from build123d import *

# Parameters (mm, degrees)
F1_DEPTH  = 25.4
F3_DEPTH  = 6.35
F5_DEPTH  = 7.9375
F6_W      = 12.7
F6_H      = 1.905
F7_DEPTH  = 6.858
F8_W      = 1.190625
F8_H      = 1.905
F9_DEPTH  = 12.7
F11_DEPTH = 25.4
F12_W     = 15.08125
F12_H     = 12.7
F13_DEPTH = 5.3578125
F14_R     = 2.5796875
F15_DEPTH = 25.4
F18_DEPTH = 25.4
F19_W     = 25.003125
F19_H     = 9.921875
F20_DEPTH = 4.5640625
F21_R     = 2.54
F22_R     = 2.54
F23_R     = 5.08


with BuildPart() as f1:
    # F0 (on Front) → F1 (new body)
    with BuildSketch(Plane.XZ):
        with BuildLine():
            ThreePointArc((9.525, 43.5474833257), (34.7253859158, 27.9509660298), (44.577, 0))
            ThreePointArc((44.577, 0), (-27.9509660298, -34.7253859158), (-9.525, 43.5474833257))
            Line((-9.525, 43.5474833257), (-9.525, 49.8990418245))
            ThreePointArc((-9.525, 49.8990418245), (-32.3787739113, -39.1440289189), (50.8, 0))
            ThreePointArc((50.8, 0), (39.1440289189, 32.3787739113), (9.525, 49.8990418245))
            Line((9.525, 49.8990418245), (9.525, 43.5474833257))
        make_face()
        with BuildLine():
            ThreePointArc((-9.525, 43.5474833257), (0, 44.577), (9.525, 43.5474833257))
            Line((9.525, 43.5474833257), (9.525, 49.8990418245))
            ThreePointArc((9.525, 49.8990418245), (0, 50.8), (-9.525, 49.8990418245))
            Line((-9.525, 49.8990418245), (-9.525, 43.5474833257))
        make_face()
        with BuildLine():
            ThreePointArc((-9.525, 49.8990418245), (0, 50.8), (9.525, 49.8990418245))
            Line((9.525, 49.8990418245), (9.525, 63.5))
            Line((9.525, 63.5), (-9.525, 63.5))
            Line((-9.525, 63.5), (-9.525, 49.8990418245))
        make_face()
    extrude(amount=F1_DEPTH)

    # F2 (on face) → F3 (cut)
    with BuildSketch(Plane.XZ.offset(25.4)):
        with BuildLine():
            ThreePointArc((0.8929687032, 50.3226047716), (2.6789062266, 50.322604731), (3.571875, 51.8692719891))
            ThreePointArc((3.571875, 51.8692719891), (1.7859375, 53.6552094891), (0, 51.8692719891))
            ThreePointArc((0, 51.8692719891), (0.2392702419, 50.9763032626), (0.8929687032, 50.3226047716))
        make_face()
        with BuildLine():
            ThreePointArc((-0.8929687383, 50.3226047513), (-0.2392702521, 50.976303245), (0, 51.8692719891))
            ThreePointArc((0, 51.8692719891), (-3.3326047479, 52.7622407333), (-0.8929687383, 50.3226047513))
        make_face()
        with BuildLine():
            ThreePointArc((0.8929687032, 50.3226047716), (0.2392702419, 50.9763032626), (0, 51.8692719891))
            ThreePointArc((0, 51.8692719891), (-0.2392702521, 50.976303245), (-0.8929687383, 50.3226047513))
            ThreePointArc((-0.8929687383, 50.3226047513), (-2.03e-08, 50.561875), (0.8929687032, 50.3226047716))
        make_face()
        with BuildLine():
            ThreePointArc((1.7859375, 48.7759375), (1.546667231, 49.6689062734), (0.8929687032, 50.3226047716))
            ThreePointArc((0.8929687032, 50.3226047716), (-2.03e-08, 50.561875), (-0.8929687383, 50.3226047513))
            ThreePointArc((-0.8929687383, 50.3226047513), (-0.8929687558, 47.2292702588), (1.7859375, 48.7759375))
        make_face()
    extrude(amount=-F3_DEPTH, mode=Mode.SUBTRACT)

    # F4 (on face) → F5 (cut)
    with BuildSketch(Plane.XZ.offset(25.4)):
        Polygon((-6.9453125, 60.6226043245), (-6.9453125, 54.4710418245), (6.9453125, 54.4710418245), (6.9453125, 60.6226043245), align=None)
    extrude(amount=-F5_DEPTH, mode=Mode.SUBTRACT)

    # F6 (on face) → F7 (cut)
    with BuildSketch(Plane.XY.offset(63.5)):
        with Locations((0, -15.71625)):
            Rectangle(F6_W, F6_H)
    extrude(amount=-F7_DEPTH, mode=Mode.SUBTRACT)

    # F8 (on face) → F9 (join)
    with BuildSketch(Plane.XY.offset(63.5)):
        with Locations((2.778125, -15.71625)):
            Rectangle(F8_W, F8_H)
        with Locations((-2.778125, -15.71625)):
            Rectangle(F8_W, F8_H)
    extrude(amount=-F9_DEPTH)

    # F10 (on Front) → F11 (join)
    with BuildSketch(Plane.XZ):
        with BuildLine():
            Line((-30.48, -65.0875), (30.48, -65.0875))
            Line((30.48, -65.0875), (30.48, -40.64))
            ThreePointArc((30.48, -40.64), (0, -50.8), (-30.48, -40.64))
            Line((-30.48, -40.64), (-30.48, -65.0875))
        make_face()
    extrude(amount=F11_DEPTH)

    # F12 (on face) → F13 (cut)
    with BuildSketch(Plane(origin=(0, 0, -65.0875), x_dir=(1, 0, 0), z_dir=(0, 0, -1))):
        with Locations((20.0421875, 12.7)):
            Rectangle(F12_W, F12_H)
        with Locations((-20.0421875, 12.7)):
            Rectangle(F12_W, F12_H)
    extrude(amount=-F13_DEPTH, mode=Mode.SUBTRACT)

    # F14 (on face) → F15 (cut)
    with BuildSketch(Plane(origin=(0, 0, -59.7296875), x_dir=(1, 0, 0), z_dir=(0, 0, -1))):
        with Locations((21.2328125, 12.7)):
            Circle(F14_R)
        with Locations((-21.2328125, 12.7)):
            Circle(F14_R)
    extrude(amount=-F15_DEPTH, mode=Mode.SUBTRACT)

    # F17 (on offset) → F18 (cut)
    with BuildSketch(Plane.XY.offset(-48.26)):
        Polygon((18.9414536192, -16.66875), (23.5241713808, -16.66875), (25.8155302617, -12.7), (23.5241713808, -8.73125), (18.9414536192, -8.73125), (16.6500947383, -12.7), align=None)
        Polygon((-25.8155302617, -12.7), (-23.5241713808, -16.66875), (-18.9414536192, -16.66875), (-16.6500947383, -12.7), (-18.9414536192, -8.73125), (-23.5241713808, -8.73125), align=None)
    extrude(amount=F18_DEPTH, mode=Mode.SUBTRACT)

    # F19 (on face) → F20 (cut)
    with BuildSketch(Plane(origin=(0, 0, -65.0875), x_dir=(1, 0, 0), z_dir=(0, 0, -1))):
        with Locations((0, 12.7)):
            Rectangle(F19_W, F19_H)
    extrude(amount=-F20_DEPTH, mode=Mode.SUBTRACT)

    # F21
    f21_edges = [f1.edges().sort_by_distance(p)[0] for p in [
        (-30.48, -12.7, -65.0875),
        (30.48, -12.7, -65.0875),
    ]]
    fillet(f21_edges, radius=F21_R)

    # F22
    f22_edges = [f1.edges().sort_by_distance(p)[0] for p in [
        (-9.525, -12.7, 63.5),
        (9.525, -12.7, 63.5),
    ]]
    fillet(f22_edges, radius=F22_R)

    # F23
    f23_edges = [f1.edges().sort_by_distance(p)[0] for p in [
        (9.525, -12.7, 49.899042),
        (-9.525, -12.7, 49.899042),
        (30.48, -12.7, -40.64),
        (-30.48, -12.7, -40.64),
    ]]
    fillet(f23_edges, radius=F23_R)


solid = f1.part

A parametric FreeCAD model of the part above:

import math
import FreeCAD as App
import Part
import Sketcher

V = App.Vector
Q = App.Units.Quantity


def edges_at(feature, points):
    """Names of the edges that pass closest to the given points."""
    edges = feature.Shape.Edges
    near = lambda p: min(range(len(edges)), key=lambda i: edges[i].distToShape(Part.Vertex(*p))[0])
    return sorted({f"Edge{near(p) + 1}" for p in points})

doc = App.newDocument("Part")
body = doc.addObject("PartDesign::Body", "Body")

# Sketch on XZ plane
sketch1 = body.newObject("Sketcher::SketchObject", "Sketch")
sketch1.AttachmentSupport = (doc.getObject("XZ_Plane"), [""])
sketch1.MapMode = "FlatFace"
sketch1.addGeometry(Part.ArcOfCircle(Part.Circle(V(0, 0, 0), V(0, 0, 1), 51), math.radians(101), math.radians(439)), False)
sketch1.addGeometry(Part.LineSegment(V(10, 50, 0), V(10, 64, 0)), False)
sketch1.addGeometry(Part.LineSegment(V(10, 64, 0), V(-10, 64, 0)), False)
sketch1.addGeometry(Part.LineSegment(V(-10, 64, 0), V(-10, 50, 0)), False)
sketch1.addGeometry(Part.ArcOfCircle(Part.Circle(V(0, 0, 0), V(0, 0, 1), 45), math.radians(102), math.radians(438)), False)
sketch1.addGeometry(Part.ArcOfCircle(Part.Circle(V(0, 0, 0), V(0, 0, 1), 45), math.radians(78), math.radians(102)), False)
sketch1.addConstraint(Sketcher.Constraint("Coincident", 0, 2, 1, 1))
sketch1.addConstraint(Sketcher.Constraint("Coincident", 1, 2, 2, 1))
sketch1.addConstraint(Sketcher.Constraint("Coincident", 2, 2, 3, 1))
sketch1.addConstraint(Sketcher.Constraint("Coincident", 3, 2, 0, 1))
sketch1.addConstraint(Sketcher.Constraint("Tangent", 4, 1, 5, 2))
sketch1.addConstraint(Sketcher.Constraint("Coincident", 5, 1, 4, 2))
sketch1.addConstraint(Sketcher.Constraint("Vertical", 1))
sketch1.addConstraint(Sketcher.Constraint("Horizontal", 2))
sketch1.addConstraint(Sketcher.Constraint("Vertical", 3))
sketch1.addConstraint(Sketcher.Constraint("Coincident", 0, 3, -1, 1))
sketch1.addConstraint(Sketcher.Constraint("Coincident", 4, 3, -1, 1))
sketch1.addConstraint(Sketcher.Constraint("Horizontal", 0, 2, 3, 2))
sketch1.addConstraint(Sketcher.Constraint("Horizontal", 4, 1, 5, 1))
sketch1.addConstraint(Sketcher.Constraint("Vertical", 3, 2, 4, 1))
sketch1.addConstraint(Sketcher.Constraint("Radius", 0, Q("2 in")))
sketch1.addConstraint(Sketcher.Constraint("Radius", 4, Q("1.755 in")))
sketch1.addConstraint(Sketcher.Constraint("DistanceX", 2, 2, 2, 1, Q("0.75 in")))
sketch1.addConstraint(Sketcher.Constraint("DistanceY", -1, 1, 1, 2, Q("2.5 in")))
pad1 = body.newObject("PartDesign::Pad", "Pad")
pad1.Profile = sketch1
pad1.Length = Q("1 in")

# Sketch on XZ plane
sketch2 = body.newObject("Sketcher::SketchObject", "Sketch001")
sketch2.AttachmentSupport = (doc.getObject("XZ_Plane"), [""])
sketch2.MapMode = "FlatFace"
sketch2.AttachmentOffset = App.Placement(V(0, 0, 1 * 25.4), App.Rotation())
sketch2.addGeometry(Part.ArcOfCircle(Part.Circle(V(1.8, 51.9, 0), V(0, 0, 1), 1.8), math.radians(-120), math.radians(0)), False)
sketch2.addGeometry(Part.ArcOfCircle(Part.Circle(V(1.8, 51.9, 0), V(0, 0, 1), 1.8), math.radians(0), math.radians(180)), False)
sketch2.addGeometry(Part.ArcOfCircle(Part.Circle(V(-1.8, 51.9, 0), V(0, 0, 1), 1.8), math.radians(0), math.radians(300)), False)
sketch2.addGeometry(Part.ArcOfCircle(Part.Circle(V(0, 48.8, 0), V(0, 0, 1), 1.8), math.radians(120), math.radians(360)), False)
sketch2.addGeometry(Part.ArcOfCircle(Part.Circle(V(0, 48.8, 0), V(0, 0, 1), 1.8), math.radians(0), math.radians(60)), False)
sketch2.addConstraint(Sketcher.Constraint("Tangent", 0, 2, 1, 1))
sketch2.addConstraint(Sketcher.Constraint("Tangent", 1, 2, 2, 1))
sketch2.addConstraint(Sketcher.Constraint("Tangent", 2, 2, 3, 1))
sketch2.addConstraint(Sketcher.Constraint("Tangent", 3, 2, 4, 1))
sketch2.addConstraint(Sketcher.Constraint("Tangent", 4, 2, 0, 1))
sketch2.addConstraint(Sketcher.Constraint("Equal", 0, 1))
sketch2.addConstraint(Sketcher.Constraint("Equal", 1, 2))
sketch2.addConstraint(Sketcher.Constraint("Equal", 2, 3))
sketch2.addConstraint(Sketcher.Constraint("Equal", 3, 4))
sketch2.addConstraint(Sketcher.Constraint("Symmetric", 0, 3, 2, 3, -2))
sketch2.addConstraint(Sketcher.Constraint("Horizontal", 2, 3, 0, 2))
sketch2.addConstraint(Sketcher.Constraint("Horizontal", 4, 3, 3, 2))
sketch2.addConstraint(Sketcher.Constraint("DistanceX", -1, 1, 0, 2, Q("0.140625 in")))
sketch2.addConstraint(Sketcher.Constraint("DistanceY", -1, 1, 0, 3, 51.869272))
pocket1 = body.newObject("PartDesign::Pocket", "Pocket")
pocket1.Profile = sketch2
pocket1.Length = Q("0.25 in")

# Sketch on XZ plane
sketch3 = body.newObject("Sketcher::SketchObject", "Sketch002")
sketch3.AttachmentSupport = (doc.getObject("XZ_Plane"), [""])
sketch3.MapMode = "FlatFace"
sketch3.AttachmentOffset = App.Placement(V(0, 0, 1 * 25.4), App.Rotation())
sketch3.addGeometry(Part.LineSegment(V(-7, 61, 0), V(-7, 54, 0)), False)
sketch3.addGeometry(Part.LineSegment(V(-7, 54, 0), V(7, 54, 0)), False)
sketch3.addGeometry(Part.LineSegment(V(7, 54, 0), V(7, 61, 0)), False)
sketch3.addGeometry(Part.LineSegment(V(7, 61, 0), V(-7, 61, 0)), False)
sketch3.addConstraint(Sketcher.Constraint("Coincident", 0, 2, 1, 1))
sketch3.addConstraint(Sketcher.Constraint("Coincident", 1, 2, 2, 1))
sketch3.addConstraint(Sketcher.Constraint("Coincident", 2, 2, 3, 1))
sketch3.addConstraint(Sketcher.Constraint("Coincident", 3, 2, 0, 1))
sketch3.addConstraint(Sketcher.Constraint("Vertical", 0))
sketch3.addConstraint(Sketcher.Constraint("Horizontal", 1))
sketch3.addConstraint(Sketcher.Constraint("Vertical", 2))
sketch3.addConstraint(Sketcher.Constraint("Horizontal", 3))
sketch3.addConstraint(Sketcher.Constraint("DistanceX", 1, 1, 1, 2, Q("0.546875 in")))
sketch3.addConstraint(Sketcher.Constraint("DistanceY", 0, 2, 0, 1, 6.151563))
sketch3.addConstraint(Sketcher.Constraint("DistanceY", -1, 1, 0, 2, 54.471042))
sketch3.addConstraint(Sketcher.Constraint("DistanceX", 0, 2, -1, 1, 6.945312))
pocket2 = body.newObject("PartDesign::Pocket", "Pocket001")
pocket2.Profile = sketch3
pocket2.Length = Q("0.3125 in")

# Sketch on XY plane
sketch4 = body.newObject("Sketcher::SketchObject", "Sketch003")
sketch4.AttachmentSupport = (doc.getObject("XY_Plane"), [""])
sketch4.MapMode = "FlatFace"
sketch4.AttachmentOffset = App.Placement(V(0, 0, 2.5 * 25.4), App.Rotation())
sketch4.addGeometry(Part.LineSegment(V(-6.3, -14.8, 0), V(-6.3, -16.7, 0)), False)
sketch4.addGeometry(Part.LineSegment(V(-6.3, -16.7, 0), V(6.3, -16.7, 0)), False)
sketch4.addGeometry(Part.LineSegment(V(6.3, -16.7, 0), V(6.3, -14.8, 0)), False)
sketch4.addGeometry(Part.LineSegment(V(6.3, -14.8, 0), V(-6.3, -14.8, 0)), False)
sketch4.addConstraint(Sketcher.Constraint("Coincident", 0, 2, 1, 1))
sketch4.addConstraint(Sketcher.Constraint("Coincident", 1, 2, 2, 1))
sketch4.addConstraint(Sketcher.Constraint("Coincident", 2, 2, 3, 1))
sketch4.addConstraint(Sketcher.Constraint("Coincident", 3, 2, 0, 1))
sketch4.addConstraint(Sketcher.Constraint("Vertical", 0))
sketch4.addConstraint(Sketcher.Constraint("Horizontal", 1))
sketch4.addConstraint(Sketcher.Constraint("Vertical", 2))
sketch4.addConstraint(Sketcher.Constraint("Horizontal", 3))
sketch4.addConstraint(Sketcher.Constraint("DistanceX", 1, 1, 1, 2, Q("0.5 in")))
sketch4.addConstraint(Sketcher.Constraint("DistanceY", 0, 2, 0, 1, Q("0.075 in")))
sketch4.addConstraint(Sketcher.Constraint("DistanceX", 0, 2, -1, 1, Q("0.25 in")))
sketch4.addConstraint(Sketcher.Constraint("DistanceY", 0, 2, -1, 1, Q("0.65625 in")))
pocket3 = body.newObject("PartDesign::Pocket", "Pocket002")
pocket3.Profile = sketch4
pocket3.Length = Q("0.27 in")

# Sketch on XY plane
sketch5 = body.newObject("Sketcher::SketchObject", "Sketch004")
sketch5.AttachmentSupport = (doc.getObject("XY_Plane"), [""])
sketch5.MapMode = "FlatFace"
sketch5.AttachmentOffset = App.Placement(V(0, 0, 2.5 * 25.4), App.Rotation())
sketch5.addGeometry(Part.LineSegment(V(2.2, -14.8, 0), V(2.2, -16.7, 0)), False)
sketch5.addGeometry(Part.LineSegment(V(2.2, -16.7, 0), V(3.4, -16.7, 0)), False)
sketch5.addGeometry(Part.LineSegment(V(3.4, -16.7, 0), V(3.4, -14.8, 0)), False)
sketch5.addGeometry(Part.LineSegment(V(3.4, -14.8, 0), V(2.2, -14.8, 0)), False)
sketch5.addGeometry(Part.LineSegment(V(-3.4, -14.8, 0), V(-3.4, -16.7, 0)), False)
sketch5.addGeometry(Part.LineSegment(V(-3.4, -16.7, 0), V(-2.2, -16.7, 0)), False)
sketch5.addGeometry(Part.LineSegment(V(-2.2, -16.7, 0), V(-2.2, -14.8, 0)), False)
sketch5.addGeometry(Part.LineSegment(V(-2.2, -14.8, 0), V(-3.4, -14.8, 0)), False)
sketch5.addConstraint(Sketcher.Constraint("Coincident", 0, 2, 1, 1))
sketch5.addConstraint(Sketcher.Constraint("Coincident", 1, 2, 2, 1))
sketch5.addConstraint(Sketcher.Constraint("Coincident", 2, 2, 3, 1))
sketch5.addConstraint(Sketcher.Constraint("Coincident", 3, 2, 0, 1))
sketch5.addConstraint(Sketcher.Constraint("Coincident", 4, 2, 5, 1))
sketch5.addConstraint(Sketcher.Constraint("Coincident", 5, 2, 6, 1))
sketch5.addConstraint(Sketcher.Constraint("Coincident", 6, 2, 7, 1))
sketch5.addConstraint(Sketcher.Constraint("Coincident", 7, 2, 4, 1))
sketch5.addConstraint(Sketcher.Constraint("Vertical", 0))
sketch5.addConstraint(Sketcher.Constraint("Horizontal", 1))
sketch5.addConstraint(Sketcher.Constraint("Vertical", 2))
sketch5.addConstraint(Sketcher.Constraint("Horizontal", 3))
sketch5.addConstraint(Sketcher.Constraint("Vertical", 4))
sketch5.addConstraint(Sketcher.Constraint("Horizontal", 5))
sketch5.addConstraint(Sketcher.Constraint("Vertical", 6))
sketch5.addConstraint(Sketcher.Constraint("Horizontal", 7))
sketch5.addConstraint(Sketcher.Constraint("Symmetric", 1, 2, 4, 2, -2))
sketch5.addConstraint(Sketcher.Constraint("Symmetric", 3, 2, 6, 2, -2))
sketch5.addConstraint(Sketcher.Constraint("DistanceX", 1, 1, 1, 2, Q("0.046875 in")))
sketch5.addConstraint(Sketcher.Constraint("DistanceY", 0, 2, 0, 1, Q("0.075 in")))
sketch5.addConstraint(Sketcher.Constraint("DistanceY", 0, 2, -1, 1, Q("0.65625 in")))
sketch5.addConstraint(Sketcher.Constraint("DistanceX", 4, 2, 0, 2, Q("0.21875 in")))
pad2 = body.newObject("PartDesign::Pad", "Pad001")
pad2.Profile = sketch5
pad2.Length = Q("0.5 in")
pad2.Reversed = True

# Sketch on XZ plane
sketch6 = body.newObject("Sketcher::SketchObject", "Sketch005")
sketch6.AttachmentSupport = (doc.getObject("XZ_Plane"), [""])
sketch6.MapMode = "FlatFace"
sketch6.addGeometry(Part.LineSegment(V(-30, -65, 0), V(30, -65, 0)), False)
sketch6.addGeometry(Part.LineSegment(V(30, -65, 0), V(30, -41, 0)), False)
sketch6.addGeometry(Part.ArcOfCircle(Part.Circle(V(0, 0, 0), V(0, 0, 1), 51), math.radians(-127), math.radians(-53)), False)
sketch6.addGeometry(Part.LineSegment(V(-30, -41, 0), V(-30, -65, 0)), False)
sketch6.addConstraint(Sketcher.Constraint("Coincident", 0, 2, 1, 1))
sketch6.addConstraint(Sketcher.Constraint("Coincident", 1, 2, 2, 2))
sketch6.addConstraint(Sketcher.Constraint("Coincident", 2, 1, 3, 1))
sketch6.addConstraint(Sketcher.Constraint("Coincident", 3, 2, 0, 1))
sketch6.addConstraint(Sketcher.Constraint("Horizontal", 0))
sketch6.addConstraint(Sketcher.Constraint("Vertical", 1))
sketch6.addConstraint(Sketcher.Constraint("Vertical", 3))
sketch6.addConstraint(Sketcher.Constraint("Coincident", 2, 3, -1, 1))
sketch6.addConstraint(Sketcher.Constraint("Horizontal", 1, 2, 2, 1))
sketch6.addConstraint(Sketcher.Constraint("Radius", 2, Q("2 in")))
sketch6.addConstraint(Sketcher.Constraint("DistanceX", 0, 1, 0, 2, Q("2.4 in")))
sketch6.addConstraint(Sketcher.Constraint("DistanceY", 1, 1, 1, 2, Q("0.9625 in")))
pad3 = body.newObject("PartDesign::Pad", "Pad002")
pad3.Profile = sketch6
pad3.Length = Q("1 in")

# Sketch on XY plane
sketch7 = body.newObject("Sketcher::SketchObject", "Sketch006")
sketch7.AttachmentSupport = (doc.getObject("XY_Plane"), [""])
sketch7.MapMode = "FlatFace"
sketch7.AttachmentOffset = App.Placement(V(0, 0, -2.5625 * 25.4), App.Rotation())
sketch7.addGeometry(Part.LineSegment(V(13, -19, 0), V(13, -6, 0)), False)
sketch7.addGeometry(Part.LineSegment(V(13, -6, 0), V(28, -6, 0)), False)
sketch7.addGeometry(Part.LineSegment(V(28, -6, 0), V(28, -19, 0)), False)
sketch7.addGeometry(Part.LineSegment(V(28, -19, 0), V(13, -19, 0)), False)
sketch7.addGeometry(Part.LineSegment(V(-28, -19, 0), V(-28, -6, 0)), False)
sketch7.addGeometry(Part.LineSegment(V(-28, -6, 0), V(-13, -6, 0)), False)
sketch7.addGeometry(Part.LineSegment(V(-13, -6, 0), V(-13, -19, 0)), False)
sketch7.addGeometry(Part.LineSegment(V(-13, -19, 0), V(-28, -19, 0)), False)
sketch7.addConstraint(Sketcher.Constraint("Coincident", 0, 2, 1, 1))
sketch7.addConstraint(Sketcher.Constraint("Coincident", 1, 2, 2, 1))
sketch7.addConstraint(Sketcher.Constraint("Coincident", 2, 2, 3, 1))
sketch7.addConstraint(Sketcher.Constraint("Coincident", 3, 2, 0, 1))
sketch7.addConstraint(Sketcher.Constraint("Coincident", 4, 2, 5, 1))
sketch7.addConstraint(Sketcher.Constraint("Coincident", 5, 2, 6, 1))
sketch7.addConstraint(Sketcher.Constraint("Coincident", 6, 2, 7, 1))
sketch7.addConstraint(Sketcher.Constraint("Coincident", 7, 2, 4, 1))
sketch7.addConstraint(Sketcher.Constraint("Vertical", 0))
sketch7.addConstraint(Sketcher.Constraint("Horizontal", 1))
sketch7.addConstraint(Sketcher.Constraint("Vertical", 2))
sketch7.addConstraint(Sketcher.Constraint("Horizontal", 3))
sketch7.addConstraint(Sketcher.Constraint("Vertical", 4))
sketch7.addConstraint(Sketcher.Constraint("Horizontal", 5))
sketch7.addConstraint(Sketcher.Constraint("Vertical", 6))
sketch7.addConstraint(Sketcher.Constraint("Horizontal", 7))
sketch7.addConstraint(Sketcher.Constraint("Symmetric", 1, 2, 4, 2, -2))
sketch7.addConstraint(Sketcher.Constraint("Symmetric", 3, 2, 6, 2, -2))
sketch7.addConstraint(Sketcher.Constraint("DistanceY", 0, 1, 0, 2, Q("0.5 in")))
sketch7.addConstraint(Sketcher.Constraint("DistanceX", 1, 1, 1, 2, Q("0.59375 in")))
sketch7.addConstraint(Sketcher.Constraint("DistanceY", 0, 2, -1, 1, Q("0.25 in")))
sketch7.addConstraint(Sketcher.Constraint("DistanceX", 4, 2, 0, 2, Q("1.578125 in")))
pocket4 = body.newObject("PartDesign::Pocket", "Pocket003")
pocket4.Profile = sketch7
pocket4.Length = 5.357812
pocket4.Reversed = True

# Sketch on XY plane
sketch8 = body.newObject("Sketcher::SketchObject", "Sketch007")
sketch8.AttachmentSupport = (doc.getObject("XY_Plane"), [""])
sketch8.MapMode = "FlatFace"
sketch8.AttachmentOffset = App.Placement(V(0, 0, -59.729687), App.Rotation())
sketch8.addGeometry(Part.Circle(V(21.2, -12.7, 0), V(0, 0, 1), 2.6), False)
sketch8.addGeometry(Part.Circle(V(-21.2, -12.7, 0), V(0, 0, 1), 2.6), False)
sketch8.addConstraint(Sketcher.Constraint("Equal", 0, 1))
sketch8.addConstraint(Sketcher.Constraint("Symmetric", 0, 3, 1, 3, -2))
sketch8.addConstraint(Sketcher.Constraint("Diameter", 0, Q("0.203125 in")))
sketch8.addConstraint(Sketcher.Constraint("DistanceY", 0, 3, -1, 1, Q("0.5 in")))
sketch8.addConstraint(Sketcher.Constraint("DistanceX", 1, 3, 0, 3, Q("1.671875 in")))
pocket5 = body.newObject("PartDesign::Pocket", "Pocket004")
pocket5.Profile = sketch8
pocket5.Length = Q("1 in")
pocket5.Reversed = True

# Sketch on XY plane
sketch9 = body.newObject("Sketcher::SketchObject", "Sketch008")
sketch9.AttachmentSupport = (doc.getObject("XY_Plane"), [""])
sketch9.MapMode = "FlatFace"
sketch9.AttachmentOffset = App.Placement(V(0, 0, -1.9 * 25.4), App.Rotation())
sketch9.addGeometry(Part.LineSegment(V(18.9, -16.7, 0), V(23.5, -16.7, 0)), False)
sketch9.addGeometry(Part.LineSegment(V(23.5, -16.7, 0), V(25.8, -12.7, 0)), False)
sketch9.addGeometry(Part.LineSegment(V(25.8, -12.7, 0), V(23.5, -8.7, 0)), False)
sketch9.addGeometry(Part.LineSegment(V(23.5, -8.7, 0), V(18.9, -8.7, 0)), False)
sketch9.addGeometry(Part.LineSegment(V(18.9, -8.7, 0), V(16.7, -12.7, 0)), False)
sketch9.addGeometry(Part.LineSegment(V(16.7, -12.7, 0), V(18.9, -16.7, 0)), False)
sketch9.addGeometry(Part.LineSegment(V(-25.8, -12.7, 0), V(-23.5, -16.7, 0)), False)
sketch9.addGeometry(Part.LineSegment(V(-23.5, -16.7, 0), V(-18.9, -16.7, 0)), False)
sketch9.addGeometry(Part.LineSegment(V(-18.9, -16.7, 0), V(-16.7, -12.7, 0)), False)
sketch9.addGeometry(Part.LineSegment(V(-16.7, -12.7, 0), V(-18.9, -8.7, 0)), False)
sketch9.addGeometry(Part.LineSegment(V(-18.9, -8.7, 0), V(-23.5, -8.7, 0)), False)
sketch9.addGeometry(Part.LineSegment(V(-23.5, -8.7, 0), V(-25.8, -12.7, 0)), False)
sketch9.addConstraint(Sketcher.Constraint("Coincident", 0, 2, 1, 1))
sketch9.addConstraint(Sketcher.Constraint("Coincident", 1, 2, 2, 1))
sketch9.addConstraint(Sketcher.Constraint("Coincident", 2, 2, 3, 1))
sketch9.addConstraint(Sketcher.Constraint("Coincident", 3, 2, 4, 1))
sketch9.addConstraint(Sketcher.Constraint("Coincident", 4, 2, 5, 1))
sketch9.addConstraint(Sketcher.Constraint("Coincident", 5, 2, 0, 1))
sketch9.addConstraint(Sketcher.Constraint("Coincident", 6, 2, 7, 1))
sketch9.addConstraint(Sketcher.Constraint("Coincident", 7, 2, 8, 1))
sketch9.addConstraint(Sketcher.Constraint("Coincident", 8, 2, 9, 1))
sketch9.addConstraint(Sketcher.Constraint("Coincident", 9, 2, 10, 1))
sketch9.addConstraint(Sketcher.Constraint("Coincident", 10, 2, 11, 1))
sketch9.addConstraint(Sketcher.Constraint("Coincident", 11, 2, 6, 1))
sketch9.addConstraint(Sketcher.Constraint("Horizontal", 0))
sketch9.addConstraint(Sketcher.Constraint("Horizontal", 3))
sketch9.addConstraint(Sketcher.Constraint("Horizontal", 7))
sketch9.addConstraint(Sketcher.Constraint("Horizontal", 10))
sketch9.addConstraint(Sketcher.Constraint("Symmetric", 0, 2, 6, 2, -2))
sketch9.addConstraint(Sketcher.Constraint("Symmetric", 4, 2, 8, 2, -2))
sketch9.addConstraint(Sketcher.Constraint("Symmetric", 3, 2, 9, 2, -2))
sketch9.addConstraint(Sketcher.Constraint("Symmetric", 1, 2, 11, 2, -2))
sketch9.addConstraint(Sketcher.Constraint("Parallel", 1, 4))
sketch9.addConstraint(Sketcher.Constraint("Parallel", 2, 5))
sketch9.addConstraint(Sketcher.Constraint("Parallel", 5, 6))
sketch9.addConstraint(Sketcher.Constraint("Parallel", 4, 8))
sketch9.addConstraint(Sketcher.Constraint("Parallel", 8, 11))
sketch9.addConstraint(Sketcher.Constraint("Horizontal", 1, 2, 4, 2))
sketch9.addConstraint(Sketcher.Constraint("Vertical", 0, 2, 2, 2))
sketch9.addConstraint(Sketcher.Constraint("Angle", 1, Q("60 deg")))
sketch9.addConstraint(Sketcher.Constraint("DistanceY", 1, 2, -1, 1, Q("0.5 in")))
sketch9.addConstraint(Sketcher.Constraint("DistanceY", 0, 2, -1, 1, Q("0.65625 in")))
sketch9.addConstraint(Sketcher.Constraint("DistanceX", 6, 2, 5, 2, Q("1.671875 in")))
sketch9.addConstraint(Sketcher.Constraint("DistanceX", 0, 1, 0, 2, 4.582718))
pocket6 = body.newObject("PartDesign::Pocket", "Pocket005")
pocket6.Profile = sketch9
pocket6.Length = Q("1 in")
pocket6.Reversed = True

# Sketch on XY plane
sketch10 = body.newObject("Sketcher::SketchObject", "Sketch009")
sketch10.AttachmentSupport = (doc.getObject("XY_Plane"), [""])
sketch10.MapMode = "FlatFace"
sketch10.AttachmentOffset = App.Placement(V(0, 0, -2.5625 * 25.4), App.Rotation())
sketch10.addGeometry(Part.LineSegment(V(-13, -18, 0), V(-13, -8, 0)), False)
sketch10.addGeometry(Part.LineSegment(V(-13, -8, 0), V(13, -8, 0)), False)
sketch10.addGeometry(Part.LineSegment(V(13, -8, 0), V(13, -18, 0)), False)
sketch10.addGeometry(Part.LineSegment(V(13, -18, 0), V(-13, -18, 0)), False)
sketch10.addConstraint(Sketcher.Constraint("Coincident", 0, 2, 1, 1))
sketch10.addConstraint(Sketcher.Constraint("Coincident", 1, 2, 2, 1))
sketch10.addConstraint(Sketcher.Constraint("Coincident", 2, 2, 3, 1))
sketch10.addConstraint(Sketcher.Constraint("Coincident", 3, 2, 0, 1))
sketch10.addConstraint(Sketcher.Constraint("Vertical", 0))
sketch10.addConstraint(Sketcher.Constraint("Horizontal", 1))
sketch10.addConstraint(Sketcher.Constraint("Vertical", 2))
sketch10.addConstraint(Sketcher.Constraint("Horizontal", 3))
sketch10.addConstraint(Sketcher.Constraint("DistanceX", 1, 1, 1, 2, Q("0.984375 in")))
sketch10.addConstraint(Sketcher.Constraint("DistanceY", 0, 1, 0, 2, Q("0.390625 in")))
sketch10.addConstraint(Sketcher.Constraint("DistanceX", 0, 2, -1, 1, 12.501563))
sketch10.addConstraint(Sketcher.Constraint("DistanceY", 0, 2, -1, 1, 7.739063))
pocket7 = body.newObject("PartDesign::Pocket", "Pocket006")
pocket7.Profile = sketch10
pocket7.Length = 4.564063
pocket7.Reversed = True
doc.recompute()

fillet = body.newObject("PartDesign::Fillet", "Fillet")
fillet.Base = (pocket7, edges_at(pocket7, [(-30.48, -12.7, -65.088), (30.48, -12.7, -65.088)]))
fillet.Radius = Q("0.1 in")
doc.recompute()

fillet2 = body.newObject("PartDesign::Fillet", "Fillet001")
fillet2.Base = (fillet, edges_at(fillet, [(-9.525, -12.7, 63.5), (9.525, -12.7, 63.5)]))
fillet2.Radius = Q("0.1 in")
doc.recompute()

fillet3 = body.newObject("PartDesign::Fillet", "Fillet002")
fillet3.Base = (fillet2, edges_at(fillet2, [
    (9.525, -12.7, 49.899),
    (-9.525, -12.7, 49.899),
    (30.48, -12.7, -40.64),
    (-30.48, -12.7, -40.64),
]))
fillet3.Radius = Q("0.2 in")

doc.recompute()
